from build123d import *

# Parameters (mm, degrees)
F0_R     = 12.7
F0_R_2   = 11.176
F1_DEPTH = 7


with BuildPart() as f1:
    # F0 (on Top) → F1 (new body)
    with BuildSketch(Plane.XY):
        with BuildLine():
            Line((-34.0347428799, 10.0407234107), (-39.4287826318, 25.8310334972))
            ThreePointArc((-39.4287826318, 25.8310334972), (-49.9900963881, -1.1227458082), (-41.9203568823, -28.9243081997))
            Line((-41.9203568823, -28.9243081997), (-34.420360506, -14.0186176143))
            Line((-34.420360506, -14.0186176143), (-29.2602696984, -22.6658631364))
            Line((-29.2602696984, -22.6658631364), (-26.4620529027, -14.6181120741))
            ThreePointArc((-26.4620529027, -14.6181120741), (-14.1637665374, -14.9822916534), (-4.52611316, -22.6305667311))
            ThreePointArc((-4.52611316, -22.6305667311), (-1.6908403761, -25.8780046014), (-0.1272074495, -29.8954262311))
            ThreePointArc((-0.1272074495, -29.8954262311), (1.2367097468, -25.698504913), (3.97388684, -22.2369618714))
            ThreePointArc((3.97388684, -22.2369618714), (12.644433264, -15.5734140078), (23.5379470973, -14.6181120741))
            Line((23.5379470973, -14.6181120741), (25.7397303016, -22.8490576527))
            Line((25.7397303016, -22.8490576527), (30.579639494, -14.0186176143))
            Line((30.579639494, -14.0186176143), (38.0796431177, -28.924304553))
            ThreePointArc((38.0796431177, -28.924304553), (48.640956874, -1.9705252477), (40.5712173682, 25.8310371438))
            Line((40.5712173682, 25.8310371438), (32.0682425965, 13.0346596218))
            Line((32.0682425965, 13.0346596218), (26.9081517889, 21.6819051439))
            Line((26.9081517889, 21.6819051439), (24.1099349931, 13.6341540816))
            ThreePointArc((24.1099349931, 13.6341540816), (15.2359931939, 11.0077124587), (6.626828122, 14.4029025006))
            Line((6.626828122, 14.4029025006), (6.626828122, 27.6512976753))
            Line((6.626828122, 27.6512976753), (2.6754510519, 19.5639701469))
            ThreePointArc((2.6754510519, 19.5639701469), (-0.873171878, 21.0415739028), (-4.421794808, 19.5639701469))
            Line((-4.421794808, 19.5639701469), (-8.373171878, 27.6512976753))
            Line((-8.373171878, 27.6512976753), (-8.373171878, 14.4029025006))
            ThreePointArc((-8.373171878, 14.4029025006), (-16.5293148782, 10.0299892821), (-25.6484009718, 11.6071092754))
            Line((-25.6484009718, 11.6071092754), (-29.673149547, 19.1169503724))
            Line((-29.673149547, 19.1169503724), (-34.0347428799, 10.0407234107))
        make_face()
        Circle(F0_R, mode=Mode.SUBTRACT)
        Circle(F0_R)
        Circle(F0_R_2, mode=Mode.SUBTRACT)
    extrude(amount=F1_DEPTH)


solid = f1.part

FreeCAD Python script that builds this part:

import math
import FreeCAD as App
import Part
import Sketcher
from FreeCAD import Vector

doc = App.newDocument("Part")
body = doc.addObject("PartDesign::Body", "Body")

sketch1 = body.newObject("Sketcher::SketchObject", "Sketch")
sketch1.AttachmentSupport = (doc.getObject("XY_Plane"), [""])
sketch1.MapMode = "FlatFace"
sketch1.addGeometry(Part.LineSegment(Vector(-34, 10, 0), Vector(-39, 26, 0)), False)
sketch1.addGeometry(Part.ArcOfCircle(Part.Circle(Vector(-5, -3, 0), Vector(0, 0, 1), 45), math.radians(140), math.radians(215)), False)
sketch1.addGeometry(Part.LineSegment(Vector(-42, -29, 0), Vector(-34, -14, 0)), False)
sketch1.addGeometry(Part.LineSegment(Vector(-34, -14, 0), Vector(-29, -23, 0)), False)
sketch1.addGeometry(Part.LineSegment(Vector(-29, -23, 0), Vector(-26, -15, 0)), False)
sketch1.addGeometry(Part.ArcOfCircle(Part.Circle(Vector(-21, -33, 0), Vector(0, 0, 1), 20), math.radians(33), math.radians(107)), False)
sketch1.addGeometry(Part.ArcOfCircle(Part.Circle(Vector(-12, -32, 0), Vector(0, 0, 1), 13), math.radians(11), math.radians(51)), False)
sketch1.addGeometry(Part.ArcOfCircle(Part.Circle(Vector(12, -32, 0), Vector(0, 0, 1), 13), math.radians(131), math.radians(172)), False)
sketch1.addGeometry(Part.ArcOfCircle(Part.Circle(Vector(20, -34, 0), Vector(0, 0, 1), 20), math.radians(79), math.radians(144)), False)
sketch1.addGeometry(Part.LineSegment(Vector(24, -15, 0), Vector(26, -23, 0)), False)
sketch1.addGeometry(Part.LineSegment(Vector(26, -23, 0), Vector(31, -14, 0)), False)
sketch1.addGeometry(Part.LineSegment(Vector(31, -14, 0), Vector(38, -29, 0)), False)
sketch1.addGeometry(Part.ArcOfCircle(Part.Circle(Vector(4, 0, 0), Vector(0, 0, 1), 45), math.radians(-40), math.radians(35)), False)
sketch1.addGeometry(Part.LineSegment(Vector(41, 26, 0), Vector(32, 13, 0)), False)
sketch1.addGeometry(Part.LineSegment(Vector(32, 13, 0), Vector(27, 22, 0)), False)
sketch1.addGeometry(Part.LineSegment(Vector(27, 22, 0), Vector(24, 14, 0)), False)
sketch1.addGeometry(Part.ArcOfCircle(Part.Circle(Vector(16, 25, 0), Vector(0, 0, 1), 14), math.radians(-131), math.radians(-55)), False)
sketch1.addGeometry(Part.LineSegment(Vector(7, 14, 0), Vector(7, 28, 0)), False)
sketch1.addGeometry(Part.LineSegment(Vector(7, 28, 0), Vector(3, 20, 0)), False)
sketch1.addGeometry(Part.ArcOfCircle(Part.Circle(Vector(-1, 16, 0), Vector(0, 0, 1), 5), math.radians(45), math.radians(135)), False)
sketch1.addGeometry(Part.LineSegment(Vector(-4, 20, 0), Vector(-8, 28, 0)), False)
sketch1.addGeometry(Part.LineSegment(Vector(-8, 28, 0), Vector(-8, 14, 0)), False)
sketch1.addGeometry(Part.ArcOfCircle(Part.Circle(Vector(-19, 24, 0), Vector(0, 0, 1), 14), math.radians(-119), math.radians(-43)), False)
sketch1.addGeometry(Part.LineSegment(Vector(-26, 12, 0), Vector(-30, 19, 0)), False)
sketch1.addGeometry(Part.LineSegment(Vector(-30, 19, 0), Vector(-34, 10, 0)), False)
sketch1.addGeometry(Part.Circle(Vector(0, 0, 0), Vector(0, 0, 1), 11), False)
sketch1.addConstraint(Sketcher.Constraint("Coincident", 0, 2, 1, 1))
sketch1.addConstraint(Sketcher.Constraint("Coincident", 1, 2, 2, 1))
sketch1.addConstraint(Sketcher.Constraint("Coincident", 2, 2, 3, 1))
sketch1.addConstraint(Sketcher.Constraint("Coincident", 3, 2, 4, 1))
sketch1.addConstraint(Sketcher.Constraint("Coincident", 4, 2, 5, 2))
sketch1.addConstraint(Sketcher.Constraint("Coincident", 5, 1, 6, 2))
sketch1.addConstraint(Sketcher.Constraint("Coincident", 6, 1, 7, 2))
sketch1.addConstraint(Sketcher.Constraint("Coincident", 7, 1, 8, 2))
sketch1.addConstraint(Sketcher.Constraint("Coincident", 8, 1, 9, 1))
sketch1.addConstraint(Sketcher.Constraint("Coincident", 9, 2, 10, 1))
sketch1.addConstraint(Sketcher.Constraint("Coincident", 10, 2, 11, 1))
sketch1.addConstraint(Sketcher.Constraint("Coincident", 11, 2, 12, 1))
sketch1.addConstraint(Sketcher.Constraint("Coincident", 12, 2, 13, 1))
sketch1.addConstraint(Sketcher.Constraint("Coincident", 13, 2, 14, 1))
sketch1.addConstraint(Sketcher.Constraint("Coincident", 14, 2, 15, 1))
sketch1.addConstraint(Sketcher.Constraint("Coincident", 15, 2, 16, 2))
sketch1.addConstraint(Sketcher.Constraint("Coincident", 16, 1, 17, 1))
sketch1.addConstraint(Sketcher.Constraint("Coincident", 17, 2, 18, 1))
sketch1.addConstraint(Sketcher.Constraint("Coincident", 18, 2, 19, 1))
sketch1.addConstraint(Sketcher.Constraint("Coincident", 19, 2, 20, 1))
sketch1.addConstraint(Sketcher.Constraint("Coincident", 20, 2, 21, 1))
sketch1.addConstraint(Sketcher.Constraint("Coincident", 21, 2, 22, 2))
sketch1.addConstraint(Sketcher.Constraint("Coincident", 22, 1, 23, 1))
sketch1.addConstraint(Sketcher.Constraint("Coincident", 23, 2, 24, 1))
sketch1.addConstraint(Sketcher.Constraint("Coincident", 24, 2, 0, 1))
sketch1.addConstraint(Sketcher.Constraint("Vertical", 17))
sketch1.addConstraint(Sketcher.Constraint("Vertical", 21))
sketch1.addConstraint(Sketcher.Constraint("Coincident", 25, 3, -1, 1))
sketch1.addConstraint(Sketcher.Constraint("Equal", 6, 7))
sketch1.addConstraint(Sketcher.Constraint("Equal", 5, 8))
sketch1.addConstraint(Sketcher.Constraint("Equal", 1, 12))
sketch1.addConstraint(Sketcher.Constraint("Equal", 16, 22))
sketch1.addConstraint(Sketcher.Constraint("Parallel", 3, 14))
sketch1.addConstraint(Sketcher.Constraint("Parallel", 4, 15))
sketch1.addConstraint(Sketcher.Constraint("Horizontal", 4, 2, 8, 1))
sketch1.addConstraint(Sketcher.Constraint("Horizontal", 2, 2, 10, 2))
sketch1.addConstraint(Sketcher.Constraint("Horizontal", 18, 2, 19, 2))
sketch1.addConstraint(Sketcher.Constraint("Horizontal", 17, 2, 20, 2))
sketch1.addConstraint(Sketcher.Constraint("Horizontal", 16, 1, 21, 2))
sketch1.addConstraint(Sketcher.Constraint("Equal", 0, 2))
sketch1.addConstraint(Sketcher.Constraint("Equal", 4, 9))
sketch1.addConstraint(Sketcher.Constraint("Equal", 3, 10))
sketch1.addConstraint(Sketcher.Constraint("Equal", 2, 11))
sketch1.addConstraint(Sketcher.Constraint("Equal", 10, 14))
sketch1.addConstraint(Sketcher.Constraint("Equal", 9, 15))
sketch1.addConstraint(Sketcher.Constraint("Equal", 18, 20))
sketch1.addConstraint(Sketcher.Constraint("Equal", 15, 23))
sketch1.addConstraint(Sketcher.Constraint("Equal", 14, 24))
sketch1.addConstraint(Sketcher.Constraint("Radius", 19, 5.0))
sketch1.addConstraint(Sketcher.Constraint("Diameter", 25, 22.352))
sketch1.addConstraint(Sketcher.Constraint("DistanceX", 20, 2, 17, 2, 15.0))
sketch1.addConstraint(Sketcher.Constraint("DistanceX", 5, 1, 7, 1, 8.5))
sketch1.addConstraint(Sketcher.Constraint("Radius", 5, 19.520859))
sketch1.addConstraint(Sketcher.Constraint("Radius", 1, 44.934727))
sketch1.addConstraint(Sketcher.Constraint("Radius", 6, 12.501533))
sketch1.addConstraint(Sketcher.Constraint("Radius", 16, 14.209166))
sketch1.addConstraint(Sketcher.Constraint("DistanceX", 1, 3, 16, 3, 20.961999))
sketch1.addConstraint(Sketcher.Constraint("DistanceX", 3, 2, 5, 3, 8.398999))
sketch1.addConstraint(Sketcher.Constraint("DistanceX", 22, 1, -1, 1, 25.648401))
sketch1.addConstraint(Sketcher.Constraint("DistanceX", 12, 3, 16, 3, 12.107501))
sketch1.addConstraint(Sketcher.Constraint("DistanceY", 12, 3, 16, 3, 25.131102))
sketch1.addConstraint(Sketcher.Constraint("DistanceX", 1, 2, 6, 3, 29.535598))
sketch1.addConstraint(Sketcher.Constraint("DistanceX", 2, 2, 6, 3, 22.035602))
sketch1.addConstraint(Sketcher.Constraint("DistanceY", 8, 3, 8, 1, 19.145501))
sketch1.addConstraint(Sketcher.Constraint("DistanceY", 12, 3, 13, 2, 12.962599))
sketch1.addConstraint(Sketcher.Constraint("DistanceY", 23, 2, 22, 3, 4.939702))
sketch1.addConstraint(Sketcher.Constraint("Distance", 0, 16.686209))
sketch1.addConstraint(Sketcher.Constraint("Distance", 13, 15.363849))
sketch1.addConstraint(Sketcher.Constraint("DistanceY", 17, 1, 17, 2, 13.248395))
sketch1.addConstraint(Sketcher.Constraint("DistanceX", 1, 3, -1, 1, 5.101818))
sketch1.addConstraint(Sketcher.Constraint("DistanceY", 1, 3, -1, 1, 3.165332))
sketch1.addConstraint(Sketcher.Constraint("DistanceX", 5, 3, -1, 1, 20.86127))
sketch1.addConstraint(Sketcher.Constraint("DistanceY", 5, 3, -1, 1, 33.31825))
sketch1.addConstraint(Sketcher.Constraint("DistanceX", 6, 3, -1, 1, 12.384759))
sketch1.addConstraint(Sketcher.Constraint("DistanceY", 6, 3, -1, 1, 32.353221))
sketch1.addConstraint(Sketcher.Constraint("DistanceX", -1, 1, 7, 3, 12.257551))
sketch1.addConstraint(Sketcher.Constraint("DistanceX", -1, 1, 8, 3, 19.728259))
sketch1.addConstraint(Sketcher.Constraint("DistanceY", -1, 1, 12, 3, 0.07206))
sketch1.addConstraint(Sketcher.Constraint("DistanceX", 19, 3, -1, 1, 0.873172))
sketch1.addConstraint(Sketcher.Constraint("DistanceY", -1, 1, 22, 3, 24.056652))
sketch1.addConstraint(Sketcher.Constraint("DistanceY", 7, 1, -1, 1, 22.236962))
sketch1.addConstraint(Sketcher.Constraint("DistanceX", -1, 1, 9, 2, 25.73973))
sketch1.addConstraint(Sketcher.Constraint("DistanceX", -1, 1, 18, 2, 2.675451))
sketch1.addConstraint(Sketcher.Constraint("DistanceY", -1, 1, 18, 2, 19.56397))
sketch1.addConstraint(Sketcher.Constraint("DistanceX", 23, 2, -1, 1, 29.67315))
sketch1.addConstraint(Sketcher.Constraint("DistanceY", 22, 3, 0, 2, 1.774382))
pad1 = body.newObject("PartDesign::Pad", "Pad")
pad1.Profile = sketch1
pad1.Length = 7

doc.recompute()
